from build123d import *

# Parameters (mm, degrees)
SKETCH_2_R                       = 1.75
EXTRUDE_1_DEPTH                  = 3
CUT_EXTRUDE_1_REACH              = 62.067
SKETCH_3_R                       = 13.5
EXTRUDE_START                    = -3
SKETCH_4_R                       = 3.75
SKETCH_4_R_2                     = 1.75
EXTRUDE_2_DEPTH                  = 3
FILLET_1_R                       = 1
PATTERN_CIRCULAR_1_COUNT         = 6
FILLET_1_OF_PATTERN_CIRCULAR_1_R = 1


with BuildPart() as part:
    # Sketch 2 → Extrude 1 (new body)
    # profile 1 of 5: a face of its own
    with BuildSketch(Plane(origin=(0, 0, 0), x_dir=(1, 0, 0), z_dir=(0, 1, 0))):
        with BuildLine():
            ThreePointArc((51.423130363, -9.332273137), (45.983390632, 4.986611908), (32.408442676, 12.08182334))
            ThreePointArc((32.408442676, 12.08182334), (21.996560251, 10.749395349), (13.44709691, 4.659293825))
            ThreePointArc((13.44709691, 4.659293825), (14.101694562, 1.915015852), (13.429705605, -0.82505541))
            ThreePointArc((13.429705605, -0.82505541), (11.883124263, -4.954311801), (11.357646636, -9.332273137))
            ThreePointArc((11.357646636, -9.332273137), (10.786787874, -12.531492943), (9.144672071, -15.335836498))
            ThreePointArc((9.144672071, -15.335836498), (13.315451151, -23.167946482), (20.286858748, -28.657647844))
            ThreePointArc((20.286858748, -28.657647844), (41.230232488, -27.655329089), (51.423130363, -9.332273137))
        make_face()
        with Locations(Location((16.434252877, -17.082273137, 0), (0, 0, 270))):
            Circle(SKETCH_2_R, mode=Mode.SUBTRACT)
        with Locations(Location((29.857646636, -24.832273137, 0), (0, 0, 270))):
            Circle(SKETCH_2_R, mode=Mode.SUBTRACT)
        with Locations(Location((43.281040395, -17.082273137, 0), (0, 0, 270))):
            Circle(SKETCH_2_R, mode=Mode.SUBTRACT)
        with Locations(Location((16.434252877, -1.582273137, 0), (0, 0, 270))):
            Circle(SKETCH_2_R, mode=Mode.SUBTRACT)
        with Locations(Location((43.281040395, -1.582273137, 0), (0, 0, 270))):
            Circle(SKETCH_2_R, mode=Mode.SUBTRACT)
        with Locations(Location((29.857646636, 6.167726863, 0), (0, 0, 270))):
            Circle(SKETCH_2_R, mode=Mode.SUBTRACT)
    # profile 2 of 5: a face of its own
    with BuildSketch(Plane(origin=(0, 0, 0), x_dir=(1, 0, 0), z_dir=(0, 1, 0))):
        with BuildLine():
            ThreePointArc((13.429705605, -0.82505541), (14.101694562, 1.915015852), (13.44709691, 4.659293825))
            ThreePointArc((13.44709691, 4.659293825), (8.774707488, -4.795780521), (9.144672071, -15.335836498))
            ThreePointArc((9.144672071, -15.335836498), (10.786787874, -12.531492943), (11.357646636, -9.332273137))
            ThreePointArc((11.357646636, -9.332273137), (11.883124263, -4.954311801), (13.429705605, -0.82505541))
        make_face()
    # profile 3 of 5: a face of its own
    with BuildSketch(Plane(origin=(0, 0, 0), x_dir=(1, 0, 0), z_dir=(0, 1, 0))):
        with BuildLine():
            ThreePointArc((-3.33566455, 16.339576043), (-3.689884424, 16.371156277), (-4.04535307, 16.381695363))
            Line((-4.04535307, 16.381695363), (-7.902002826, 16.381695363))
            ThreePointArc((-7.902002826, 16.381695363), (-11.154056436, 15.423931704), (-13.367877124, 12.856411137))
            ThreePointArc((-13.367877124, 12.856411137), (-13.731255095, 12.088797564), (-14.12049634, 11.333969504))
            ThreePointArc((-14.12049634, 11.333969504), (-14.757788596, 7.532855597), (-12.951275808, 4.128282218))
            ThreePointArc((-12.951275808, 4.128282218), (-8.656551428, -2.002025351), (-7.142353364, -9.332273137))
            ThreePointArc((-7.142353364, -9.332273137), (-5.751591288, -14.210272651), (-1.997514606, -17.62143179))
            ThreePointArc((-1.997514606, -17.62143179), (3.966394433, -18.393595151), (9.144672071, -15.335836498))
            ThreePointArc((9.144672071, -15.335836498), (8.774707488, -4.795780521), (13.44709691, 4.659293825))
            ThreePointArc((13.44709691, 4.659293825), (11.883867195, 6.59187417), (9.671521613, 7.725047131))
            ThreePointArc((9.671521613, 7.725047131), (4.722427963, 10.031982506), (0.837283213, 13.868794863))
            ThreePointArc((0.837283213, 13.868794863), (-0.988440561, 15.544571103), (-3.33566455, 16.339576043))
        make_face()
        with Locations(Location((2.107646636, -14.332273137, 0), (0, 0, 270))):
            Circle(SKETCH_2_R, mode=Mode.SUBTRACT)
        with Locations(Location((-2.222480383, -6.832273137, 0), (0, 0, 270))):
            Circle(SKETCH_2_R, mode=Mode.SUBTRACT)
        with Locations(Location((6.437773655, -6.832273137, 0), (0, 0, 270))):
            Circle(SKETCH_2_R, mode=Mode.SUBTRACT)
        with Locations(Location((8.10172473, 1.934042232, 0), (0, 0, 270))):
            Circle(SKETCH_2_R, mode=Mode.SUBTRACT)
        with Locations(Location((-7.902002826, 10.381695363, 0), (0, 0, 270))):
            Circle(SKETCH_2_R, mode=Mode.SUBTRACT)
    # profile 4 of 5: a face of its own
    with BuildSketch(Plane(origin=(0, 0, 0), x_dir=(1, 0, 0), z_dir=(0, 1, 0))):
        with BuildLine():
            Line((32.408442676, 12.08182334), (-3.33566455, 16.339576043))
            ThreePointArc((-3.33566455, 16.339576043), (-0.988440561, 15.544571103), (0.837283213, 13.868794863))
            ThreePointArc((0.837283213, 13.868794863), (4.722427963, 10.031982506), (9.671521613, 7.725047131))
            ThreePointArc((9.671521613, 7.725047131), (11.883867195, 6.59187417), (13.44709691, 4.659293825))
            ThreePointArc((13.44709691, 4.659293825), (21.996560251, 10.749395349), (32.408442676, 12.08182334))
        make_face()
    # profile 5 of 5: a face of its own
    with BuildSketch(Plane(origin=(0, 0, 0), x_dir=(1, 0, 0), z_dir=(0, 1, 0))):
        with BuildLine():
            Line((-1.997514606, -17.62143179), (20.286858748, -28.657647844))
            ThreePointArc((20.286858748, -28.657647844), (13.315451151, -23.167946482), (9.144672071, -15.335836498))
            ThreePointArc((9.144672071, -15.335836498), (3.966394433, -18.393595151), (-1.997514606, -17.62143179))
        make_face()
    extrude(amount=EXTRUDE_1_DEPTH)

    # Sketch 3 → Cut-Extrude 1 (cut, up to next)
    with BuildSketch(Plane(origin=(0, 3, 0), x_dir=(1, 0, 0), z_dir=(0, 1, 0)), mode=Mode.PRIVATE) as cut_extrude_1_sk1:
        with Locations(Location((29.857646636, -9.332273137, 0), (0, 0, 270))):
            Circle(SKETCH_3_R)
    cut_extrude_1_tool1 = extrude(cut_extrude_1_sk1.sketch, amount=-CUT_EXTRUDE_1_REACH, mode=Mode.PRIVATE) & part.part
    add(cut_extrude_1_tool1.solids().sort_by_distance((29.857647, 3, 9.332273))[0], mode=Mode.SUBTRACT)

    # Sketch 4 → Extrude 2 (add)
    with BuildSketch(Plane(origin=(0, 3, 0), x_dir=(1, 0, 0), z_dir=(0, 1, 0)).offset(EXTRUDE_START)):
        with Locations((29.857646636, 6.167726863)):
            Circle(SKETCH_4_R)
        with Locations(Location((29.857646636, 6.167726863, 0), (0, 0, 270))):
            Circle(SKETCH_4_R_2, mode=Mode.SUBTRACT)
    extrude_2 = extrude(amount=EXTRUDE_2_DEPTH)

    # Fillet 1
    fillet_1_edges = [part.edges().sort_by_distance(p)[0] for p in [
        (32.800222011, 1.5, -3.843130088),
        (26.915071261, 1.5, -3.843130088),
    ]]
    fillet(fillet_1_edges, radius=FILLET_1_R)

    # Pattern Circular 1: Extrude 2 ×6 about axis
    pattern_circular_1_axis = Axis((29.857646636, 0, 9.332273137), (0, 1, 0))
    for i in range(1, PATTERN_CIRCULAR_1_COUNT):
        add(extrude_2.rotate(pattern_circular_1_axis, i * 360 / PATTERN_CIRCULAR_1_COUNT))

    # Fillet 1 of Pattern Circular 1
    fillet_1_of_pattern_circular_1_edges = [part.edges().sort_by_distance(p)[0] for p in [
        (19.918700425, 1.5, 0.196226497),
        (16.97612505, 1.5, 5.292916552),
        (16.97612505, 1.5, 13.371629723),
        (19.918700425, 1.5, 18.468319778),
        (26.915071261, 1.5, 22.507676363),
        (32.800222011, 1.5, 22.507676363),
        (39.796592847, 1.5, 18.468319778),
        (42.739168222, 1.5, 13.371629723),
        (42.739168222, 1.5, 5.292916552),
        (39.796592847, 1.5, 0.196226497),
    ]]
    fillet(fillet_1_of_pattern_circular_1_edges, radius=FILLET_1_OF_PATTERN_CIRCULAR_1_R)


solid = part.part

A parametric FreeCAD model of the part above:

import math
import FreeCAD as App
import Part
import Sketcher


def edges_at(feature, points):
    """Names of the edges that pass closest to the given points."""
    edges = feature.Shape.Edges
    near = lambda p: min(range(len(edges)), key=lambda i: edges[i].distToShape(Part.Vertex(*p))[0])
    return sorted({f"Edge{near(p) + 1}" for p in points})

doc = App.newDocument("Part")
params = doc.addObject("Spreadsheet::Sheet", "Params")
for row, (alias, value) in enumerate([
    ("sketch1_radius", "6 mm"),
    ("sketch1_radius2", "24.999999 mm"),
    ("sketch1_diameter", "3.5 mm"),
    ("sketch1_radius3", "18.5 mm"),
    ("sketch1_radius4", "9.25 mm"),
    ("pad1_length", "3 mm"),
    ("sketch2_diameter", "27 mm"),
    ("sketch3_diameter", "7.5 mm"),
    ("sketch3_diameter2", "3.5 mm"),
    ("pad2_length", "3 mm"),
    ("fillet_radius", "1 mm"),
    ("fillet2_radius", "1 mm"),
], start=1):
    params.set(f"A{row}", alias)
    params.set(f"B{row}", "=" + value)
    params.setAlias(f"B{row}", alias)

body = doc.addObject("PartDesign::Body", "Body")

sketch1 = doc.addObject("Sketcher::SketchObject", "Sketch")
body.addObject(sketch1)
sketch1.AttachmentSupport = (doc.XZ_Plane, [""])
sketch1.MapMode = "FlatFace"
sketch1.addGeometry([
    Part.ArcOfCircle(Part.Circle(App.Vector(29.9, 9.3, 0), App.Vector(0, 0, 1), 21.6), math.radians(-83), math.radians(0)),
    Part.LineSegment(App.Vector(32.4, -12.1, 0), App.Vector(-3.3, -16.3, 0)),
    Part.ArcOfCircle(Part.Circle(App.Vector(-4, -10.4, 0), App.Vector(0, 0, 1), 6), math.radians(-90), math.radians(-83.21)),
    Part.LineSegment(App.Vector(-4, -16.4, 0), App.Vector(-7.9, -16.4, 0)),
    Part.ArcOfCircle(Part.Circle(App.Vector(-7.9, -10.4, 0), App.Vector(0, 0, 1), 6), math.radians(-156), math.radians(-90)),
    Part.ArcOfCircle(Part.Circle(App.Vector(-36.1, -23.2, 0), App.Vector(0, 0, 1), 25), math.radians(24.36), math.radians(28.25)),
    Part.ArcOfCircle(Part.Circle(App.Vector(-8.8, -8.5, 0), App.Vector(0, 0, 1), 6), math.radians(133), math.radians(208)),
    Part.ArcOfCircle(Part.Circle(App.Vector(-25.6, 9.3, 0), App.Vector(0, 0, 1), 18.5), math.radians(-47), math.radians(0)),
    Part.ArcOfCircle(Part.Circle(App.Vector(2.1, 9.3, 0), App.Vector(0, 0, 1), 9.2), math.radians(116), math.radians(180)),
    Part.LineSegment(App.Vector(-2, 17.6, 0), App.Vector(20.3, 28.7, 0)),
    Part.ArcOfCircle(Part.Circle(App.Vector(29.9, 9.3, 0), App.Vector(0, 0, 1), 21.6), math.radians(0), math.radians(116)),
    Part.Circle(App.Vector(16.4, 17.1, 0), App.Vector(0, 0, 1), 1.8),
    Part.Circle(App.Vector(29.9, 24.8, 0), App.Vector(0, 0, 1), 1.8),
    Part.Circle(App.Vector(43.3, 17.1, 0), App.Vector(0, 0, 1), 1.8),
    Part.Circle(App.Vector(16.4, 1.6, 0), App.Vector(0, 0, 1), 1.8),
    Part.Circle(App.Vector(43.3, 1.6, 0), App.Vector(0, 0, 1), 1.8),
    Part.Circle(App.Vector(29.9, -6.2, 0), App.Vector(0, 0, 1), 1.8),
    Part.Circle(App.Vector(8.1, -1.9, 0), App.Vector(0, 0, 1), 1.8),
    Part.Circle(App.Vector(-7.9, -10.4, 0), App.Vector(0, 0, 1), 1.8),
    Part.Circle(App.Vector(6.4, 6.8, 0), App.Vector(0, 0, 1), 1.8),
    Part.Circle(App.Vector(-2.2, 6.8, 0), App.Vector(0, 0, 1), 1.8),
    Part.Circle(App.Vector(2.1, 14.3, 0), App.Vector(0, 0, 1), 1.8),
], False)
sketch1.addConstraint([
    Sketcher.Constraint("Tangent", 0, 1, 1, 1),
    Sketcher.Constraint("Tangent", 1, 2, 2, 2),
    Sketcher.Constraint("Tangent", 2, 1, 3, 1),
    Sketcher.Constraint("Tangent", 3, 2, 4, 2),
    Sketcher.Constraint("Tangent", 4, 1, 5, 1),
    Sketcher.Constraint("Tangent", 5, 2, 6, 2),
    Sketcher.Constraint("Tangent", 6, 1, 7, 1),
    Sketcher.Constraint("Tangent", 7, 2, 8, 2),
    Sketcher.Constraint("Tangent", 8, 1, 9, 1),
    Sketcher.Constraint("Tangent", 9, 2, 10, 2),
    Sketcher.Constraint("Tangent", 10, 1, 0, 2),
    Sketcher.Constraint("Horizontal", 3),
    Sketcher.Constraint("Coincident", 18, 3, 4, 3),
    Sketcher.Constraint("Equal", 2, 4),
    Sketcher.Constraint("Equal", 4, 6),
    Sketcher.Constraint("Equal", 0, 10),
    Sketcher.Constraint("Equal", 11, 12),
    Sketcher.Constraint("Equal", 12, 13),
    Sketcher.Constraint("Equal", 13, 14),
    Sketcher.Constraint("Equal", 14, 15),
    Sketcher.Constraint("Equal", 15, 16),
    Sketcher.Constraint("Equal", 16, 17),
    Sketcher.Constraint("Equal", 17, 18),
    Sketcher.Constraint("Equal", 18, 19),
    Sketcher.Constraint("Equal", 19, 20),
    Sketcher.Constraint("Equal", 20, 21),
    Sketcher.Constraint("Horizontal", 0, 3, 7, 3),
    Sketcher.Constraint("Horizontal", 7, 3, 8, 3),
    Sketcher.Constraint("Horizontal", 11, 3, 13, 3),
    Sketcher.Constraint("Horizontal", 14, 3, 15, 3),
    Sketcher.Constraint("Horizontal", 19, 3, 20, 3),
    Sketcher.Constraint("Horizontal", 7, 2, 10, 1),
    Sketcher.Constraint("Vertical", 10, 3, 12, 3),
    Sketcher.Constraint("Vertical", 11, 3, 14, 3),
    Sketcher.Constraint("Vertical", 13, 3, 15, 3),
    Sketcher.Constraint("Vertical", 12, 3, 16, 3),
    Sketcher.Constraint("Vertical", 8, 3, 21, 3),
    Sketcher.Constraint("Radius", 2, 6.0),
    Sketcher.Constraint("Radius", 5, 24.999999),
    Sketcher.Constraint("Diameter", 11, 3.5),
    Sketcher.Constraint("Radius", 7, 18.5),
    Sketcher.Constraint("Radius", 8, 9.25),
    Sketcher.Constraint("DistanceX", 5, 3, 0, 3, 65.999999),
    Sketcher.Constraint("DistanceY", 8, 3, 21, 3, 5.0),
    Sketcher.Constraint("DistanceY", 5, 3, 0, 3, 32.5),
    Sketcher.Constraint("DistanceX", 5, 3, 7, 3, 10.499999),
    Sketcher.Constraint("DistanceY", 0, 3, 12, 3, 15.5),
    Sketcher.Constraint("DistanceY", 14, 3, 11, 3, 15.5),
    Sketcher.Constraint("DistanceY", 16, 3, 10, 3, 15.5),
    Sketcher.Constraint("DistanceY", 19, 3, 8, 3, 2.5),
    Sketcher.Constraint("DistanceY", 0, 3, 11, 3, 7.75),
    Sketcher.Constraint("Radius", 0, 21.565484),
    Sketcher.Constraint("DistanceX", 2, 3, 0, 3, 33.903),
    Sketcher.Constraint("Distance", 1, 35.996801),
    Sketcher.Constraint("DistanceX", 6, 3, -1, 1, 8.835251),
    Sketcher.Constraint("DistanceX", -1, 1, 13, 3, 43.28104),
    Sketcher.Constraint("DistanceX", 20, 3, -1, 1, 2.22248),
    Sketcher.Constraint("DistanceY", 4, 1, -1, 1, 12.856411),
    Sketcher.Constraint("DistanceX", 17, 3, 14, 3, 8.332528),
    Sketcher.Constraint("DistanceX", 8, 3, 17, 3, 5.994078),
    Sketcher.Constraint("DistanceX", 19, 3, 17, 3, 1.663951),
    Sketcher.Constraint("DistanceY", 17, 3, -1, 1, 1.934042),
])
sketch1.setExpression("Constraints[37]", "Params.sketch1_radius")
sketch1.setExpression("Constraints[38]", "Params.sketch1_radius2")
sketch1.setExpression("Constraints[39]", "Params.sketch1_diameter")
sketch1.setExpression("Constraints[40]", "Params.sketch1_radius3")
sketch1.setExpression("Constraints[41]", "Params.sketch1_radius4")
pad1 = doc.addObject("PartDesign::Pad", "Pad")
body.addObject(pad1)
pad1.Profile = sketch1
pad1.setExpression("Length", "Params.pad1_length")
pad1.Reversed = True

sketch2 = doc.addObject("Sketcher::SketchObject", "Sketch001")
body.addObject(sketch2)
sketch2.AttachmentSupport = (doc.XZ_Plane, [""])
sketch2.MapMode = "FlatFace"
sketch2.AttachmentOffset = App.Placement(App.Vector(0, 0, -3), App.Rotation())
sketch2.addGeometry(Part.Circle(App.Vector(30, 9, 0), App.Vector(0, 0, 1), 14), False)
sketch2.addConstraint([
    Sketcher.Constraint("Diameter", 0, 27.0),
    Sketcher.Constraint("DistanceX", -1, 1, 0, 3, 29.857647),
    Sketcher.Constraint("DistanceY", -1, 1, 0, 3, 9.332273),
])
sketch2.setExpression("Constraints[0]", "Params.sketch2_diameter")
pocket1 = doc.addObject("PartDesign::Pocket", "Pocket")
body.addObject(pocket1)
pocket1.Profile = sketch2
pocket1.Type = "UpToFirst"
pocket1.Reversed = True

sketch3 = doc.addObject("Sketcher::SketchObject", "Sketch002")
body.addObject(sketch3)
sketch3.AttachmentSupport = (doc.XZ_Plane, [""])
sketch3.MapMode = "FlatFace"
sketch3.addGeometry([
    Part.Circle(App.Vector(29.9, -6.2, 0), App.Vector(0, 0, 1), 3.8),
    Part.Circle(App.Vector(29.9, -6.2, 0), App.Vector(0, 0, 1), 1.8),
], False)
sketch3.addConstraint([
    Sketcher.Constraint("Coincident", 1, 3, 0, 3),
    Sketcher.Constraint("Diameter", 0, 7.5),
    Sketcher.Constraint("Diameter", 1, 3.5),
    Sketcher.Constraint("DistanceX", -1, 1, 0, 3, 29.857647),
    Sketcher.Constraint("DistanceY", 0, 3, -1, 1, 6.167727),
])
sketch3.setExpression("Constraints[1]", "Params.sketch3_diameter")
sketch3.setExpression("Constraints[2]", "Params.sketch3_diameter2")
pad2 = doc.addObject("PartDesign::Pad", "Pad001")
body.addObject(pad2)
pad2.Profile = sketch3
pad2.setExpression("Length", "Params.pad2_length")
pad2.Reversed = True
doc.recompute()

fillet = doc.addObject("PartDesign::Fillet", "Fillet")
body.addObject(fillet)
fillet.Base = (pad2, edges_at(pad2, [(32.8, 1.5, -3.843), (26.915, 1.5, -3.843)]))
fillet.setExpression("Radius", "Params.fillet_radius")
doc.recompute()

datumline = doc.addObject("PartDesign::Line", "DatumLine")
body.addObject(datumline)
datumline.Placement = App.Placement(App.Vector(29.857647, 0, 9.332273), App.Rotation(App.Vector(0, 0, 1), App.Vector(0, 1, 0)))
polarpattern = doc.addObject("PartDesign::PolarPattern", "PolarPattern")
body.addObject(polarpattern)
polarpattern.Originals = [pad2]
polarpattern.Axis = (datumline, [""])
polarpattern.Angle = 360
polarpattern.Occurrences = 6
body.Tip = polarpattern
doc.recompute()

fillet2 = doc.addObject("PartDesign::Fillet", "Fillet001")
body.addObject(fillet2)
fillet2.Base = (polarpattern, edges_at(polarpattern, [
    (19.919, 1.5, 0.196),
    (16.976, 1.5, 5.293),
    (16.976, 1.5, 13.372),
    (19.919, 1.5, 18.468),
    (26.915, 1.5, 22.508),
    (32.8, 1.5, 22.508),
    (39.797, 1.5, 18.468),
    (42.739, 1.5, 13.372),
    (42.739, 1.5, 5.293),
    (39.797, 1.5, 0.196),
]))
fillet2.setExpression("Radius", "Params.fillet2_radius")

doc.recompute()
